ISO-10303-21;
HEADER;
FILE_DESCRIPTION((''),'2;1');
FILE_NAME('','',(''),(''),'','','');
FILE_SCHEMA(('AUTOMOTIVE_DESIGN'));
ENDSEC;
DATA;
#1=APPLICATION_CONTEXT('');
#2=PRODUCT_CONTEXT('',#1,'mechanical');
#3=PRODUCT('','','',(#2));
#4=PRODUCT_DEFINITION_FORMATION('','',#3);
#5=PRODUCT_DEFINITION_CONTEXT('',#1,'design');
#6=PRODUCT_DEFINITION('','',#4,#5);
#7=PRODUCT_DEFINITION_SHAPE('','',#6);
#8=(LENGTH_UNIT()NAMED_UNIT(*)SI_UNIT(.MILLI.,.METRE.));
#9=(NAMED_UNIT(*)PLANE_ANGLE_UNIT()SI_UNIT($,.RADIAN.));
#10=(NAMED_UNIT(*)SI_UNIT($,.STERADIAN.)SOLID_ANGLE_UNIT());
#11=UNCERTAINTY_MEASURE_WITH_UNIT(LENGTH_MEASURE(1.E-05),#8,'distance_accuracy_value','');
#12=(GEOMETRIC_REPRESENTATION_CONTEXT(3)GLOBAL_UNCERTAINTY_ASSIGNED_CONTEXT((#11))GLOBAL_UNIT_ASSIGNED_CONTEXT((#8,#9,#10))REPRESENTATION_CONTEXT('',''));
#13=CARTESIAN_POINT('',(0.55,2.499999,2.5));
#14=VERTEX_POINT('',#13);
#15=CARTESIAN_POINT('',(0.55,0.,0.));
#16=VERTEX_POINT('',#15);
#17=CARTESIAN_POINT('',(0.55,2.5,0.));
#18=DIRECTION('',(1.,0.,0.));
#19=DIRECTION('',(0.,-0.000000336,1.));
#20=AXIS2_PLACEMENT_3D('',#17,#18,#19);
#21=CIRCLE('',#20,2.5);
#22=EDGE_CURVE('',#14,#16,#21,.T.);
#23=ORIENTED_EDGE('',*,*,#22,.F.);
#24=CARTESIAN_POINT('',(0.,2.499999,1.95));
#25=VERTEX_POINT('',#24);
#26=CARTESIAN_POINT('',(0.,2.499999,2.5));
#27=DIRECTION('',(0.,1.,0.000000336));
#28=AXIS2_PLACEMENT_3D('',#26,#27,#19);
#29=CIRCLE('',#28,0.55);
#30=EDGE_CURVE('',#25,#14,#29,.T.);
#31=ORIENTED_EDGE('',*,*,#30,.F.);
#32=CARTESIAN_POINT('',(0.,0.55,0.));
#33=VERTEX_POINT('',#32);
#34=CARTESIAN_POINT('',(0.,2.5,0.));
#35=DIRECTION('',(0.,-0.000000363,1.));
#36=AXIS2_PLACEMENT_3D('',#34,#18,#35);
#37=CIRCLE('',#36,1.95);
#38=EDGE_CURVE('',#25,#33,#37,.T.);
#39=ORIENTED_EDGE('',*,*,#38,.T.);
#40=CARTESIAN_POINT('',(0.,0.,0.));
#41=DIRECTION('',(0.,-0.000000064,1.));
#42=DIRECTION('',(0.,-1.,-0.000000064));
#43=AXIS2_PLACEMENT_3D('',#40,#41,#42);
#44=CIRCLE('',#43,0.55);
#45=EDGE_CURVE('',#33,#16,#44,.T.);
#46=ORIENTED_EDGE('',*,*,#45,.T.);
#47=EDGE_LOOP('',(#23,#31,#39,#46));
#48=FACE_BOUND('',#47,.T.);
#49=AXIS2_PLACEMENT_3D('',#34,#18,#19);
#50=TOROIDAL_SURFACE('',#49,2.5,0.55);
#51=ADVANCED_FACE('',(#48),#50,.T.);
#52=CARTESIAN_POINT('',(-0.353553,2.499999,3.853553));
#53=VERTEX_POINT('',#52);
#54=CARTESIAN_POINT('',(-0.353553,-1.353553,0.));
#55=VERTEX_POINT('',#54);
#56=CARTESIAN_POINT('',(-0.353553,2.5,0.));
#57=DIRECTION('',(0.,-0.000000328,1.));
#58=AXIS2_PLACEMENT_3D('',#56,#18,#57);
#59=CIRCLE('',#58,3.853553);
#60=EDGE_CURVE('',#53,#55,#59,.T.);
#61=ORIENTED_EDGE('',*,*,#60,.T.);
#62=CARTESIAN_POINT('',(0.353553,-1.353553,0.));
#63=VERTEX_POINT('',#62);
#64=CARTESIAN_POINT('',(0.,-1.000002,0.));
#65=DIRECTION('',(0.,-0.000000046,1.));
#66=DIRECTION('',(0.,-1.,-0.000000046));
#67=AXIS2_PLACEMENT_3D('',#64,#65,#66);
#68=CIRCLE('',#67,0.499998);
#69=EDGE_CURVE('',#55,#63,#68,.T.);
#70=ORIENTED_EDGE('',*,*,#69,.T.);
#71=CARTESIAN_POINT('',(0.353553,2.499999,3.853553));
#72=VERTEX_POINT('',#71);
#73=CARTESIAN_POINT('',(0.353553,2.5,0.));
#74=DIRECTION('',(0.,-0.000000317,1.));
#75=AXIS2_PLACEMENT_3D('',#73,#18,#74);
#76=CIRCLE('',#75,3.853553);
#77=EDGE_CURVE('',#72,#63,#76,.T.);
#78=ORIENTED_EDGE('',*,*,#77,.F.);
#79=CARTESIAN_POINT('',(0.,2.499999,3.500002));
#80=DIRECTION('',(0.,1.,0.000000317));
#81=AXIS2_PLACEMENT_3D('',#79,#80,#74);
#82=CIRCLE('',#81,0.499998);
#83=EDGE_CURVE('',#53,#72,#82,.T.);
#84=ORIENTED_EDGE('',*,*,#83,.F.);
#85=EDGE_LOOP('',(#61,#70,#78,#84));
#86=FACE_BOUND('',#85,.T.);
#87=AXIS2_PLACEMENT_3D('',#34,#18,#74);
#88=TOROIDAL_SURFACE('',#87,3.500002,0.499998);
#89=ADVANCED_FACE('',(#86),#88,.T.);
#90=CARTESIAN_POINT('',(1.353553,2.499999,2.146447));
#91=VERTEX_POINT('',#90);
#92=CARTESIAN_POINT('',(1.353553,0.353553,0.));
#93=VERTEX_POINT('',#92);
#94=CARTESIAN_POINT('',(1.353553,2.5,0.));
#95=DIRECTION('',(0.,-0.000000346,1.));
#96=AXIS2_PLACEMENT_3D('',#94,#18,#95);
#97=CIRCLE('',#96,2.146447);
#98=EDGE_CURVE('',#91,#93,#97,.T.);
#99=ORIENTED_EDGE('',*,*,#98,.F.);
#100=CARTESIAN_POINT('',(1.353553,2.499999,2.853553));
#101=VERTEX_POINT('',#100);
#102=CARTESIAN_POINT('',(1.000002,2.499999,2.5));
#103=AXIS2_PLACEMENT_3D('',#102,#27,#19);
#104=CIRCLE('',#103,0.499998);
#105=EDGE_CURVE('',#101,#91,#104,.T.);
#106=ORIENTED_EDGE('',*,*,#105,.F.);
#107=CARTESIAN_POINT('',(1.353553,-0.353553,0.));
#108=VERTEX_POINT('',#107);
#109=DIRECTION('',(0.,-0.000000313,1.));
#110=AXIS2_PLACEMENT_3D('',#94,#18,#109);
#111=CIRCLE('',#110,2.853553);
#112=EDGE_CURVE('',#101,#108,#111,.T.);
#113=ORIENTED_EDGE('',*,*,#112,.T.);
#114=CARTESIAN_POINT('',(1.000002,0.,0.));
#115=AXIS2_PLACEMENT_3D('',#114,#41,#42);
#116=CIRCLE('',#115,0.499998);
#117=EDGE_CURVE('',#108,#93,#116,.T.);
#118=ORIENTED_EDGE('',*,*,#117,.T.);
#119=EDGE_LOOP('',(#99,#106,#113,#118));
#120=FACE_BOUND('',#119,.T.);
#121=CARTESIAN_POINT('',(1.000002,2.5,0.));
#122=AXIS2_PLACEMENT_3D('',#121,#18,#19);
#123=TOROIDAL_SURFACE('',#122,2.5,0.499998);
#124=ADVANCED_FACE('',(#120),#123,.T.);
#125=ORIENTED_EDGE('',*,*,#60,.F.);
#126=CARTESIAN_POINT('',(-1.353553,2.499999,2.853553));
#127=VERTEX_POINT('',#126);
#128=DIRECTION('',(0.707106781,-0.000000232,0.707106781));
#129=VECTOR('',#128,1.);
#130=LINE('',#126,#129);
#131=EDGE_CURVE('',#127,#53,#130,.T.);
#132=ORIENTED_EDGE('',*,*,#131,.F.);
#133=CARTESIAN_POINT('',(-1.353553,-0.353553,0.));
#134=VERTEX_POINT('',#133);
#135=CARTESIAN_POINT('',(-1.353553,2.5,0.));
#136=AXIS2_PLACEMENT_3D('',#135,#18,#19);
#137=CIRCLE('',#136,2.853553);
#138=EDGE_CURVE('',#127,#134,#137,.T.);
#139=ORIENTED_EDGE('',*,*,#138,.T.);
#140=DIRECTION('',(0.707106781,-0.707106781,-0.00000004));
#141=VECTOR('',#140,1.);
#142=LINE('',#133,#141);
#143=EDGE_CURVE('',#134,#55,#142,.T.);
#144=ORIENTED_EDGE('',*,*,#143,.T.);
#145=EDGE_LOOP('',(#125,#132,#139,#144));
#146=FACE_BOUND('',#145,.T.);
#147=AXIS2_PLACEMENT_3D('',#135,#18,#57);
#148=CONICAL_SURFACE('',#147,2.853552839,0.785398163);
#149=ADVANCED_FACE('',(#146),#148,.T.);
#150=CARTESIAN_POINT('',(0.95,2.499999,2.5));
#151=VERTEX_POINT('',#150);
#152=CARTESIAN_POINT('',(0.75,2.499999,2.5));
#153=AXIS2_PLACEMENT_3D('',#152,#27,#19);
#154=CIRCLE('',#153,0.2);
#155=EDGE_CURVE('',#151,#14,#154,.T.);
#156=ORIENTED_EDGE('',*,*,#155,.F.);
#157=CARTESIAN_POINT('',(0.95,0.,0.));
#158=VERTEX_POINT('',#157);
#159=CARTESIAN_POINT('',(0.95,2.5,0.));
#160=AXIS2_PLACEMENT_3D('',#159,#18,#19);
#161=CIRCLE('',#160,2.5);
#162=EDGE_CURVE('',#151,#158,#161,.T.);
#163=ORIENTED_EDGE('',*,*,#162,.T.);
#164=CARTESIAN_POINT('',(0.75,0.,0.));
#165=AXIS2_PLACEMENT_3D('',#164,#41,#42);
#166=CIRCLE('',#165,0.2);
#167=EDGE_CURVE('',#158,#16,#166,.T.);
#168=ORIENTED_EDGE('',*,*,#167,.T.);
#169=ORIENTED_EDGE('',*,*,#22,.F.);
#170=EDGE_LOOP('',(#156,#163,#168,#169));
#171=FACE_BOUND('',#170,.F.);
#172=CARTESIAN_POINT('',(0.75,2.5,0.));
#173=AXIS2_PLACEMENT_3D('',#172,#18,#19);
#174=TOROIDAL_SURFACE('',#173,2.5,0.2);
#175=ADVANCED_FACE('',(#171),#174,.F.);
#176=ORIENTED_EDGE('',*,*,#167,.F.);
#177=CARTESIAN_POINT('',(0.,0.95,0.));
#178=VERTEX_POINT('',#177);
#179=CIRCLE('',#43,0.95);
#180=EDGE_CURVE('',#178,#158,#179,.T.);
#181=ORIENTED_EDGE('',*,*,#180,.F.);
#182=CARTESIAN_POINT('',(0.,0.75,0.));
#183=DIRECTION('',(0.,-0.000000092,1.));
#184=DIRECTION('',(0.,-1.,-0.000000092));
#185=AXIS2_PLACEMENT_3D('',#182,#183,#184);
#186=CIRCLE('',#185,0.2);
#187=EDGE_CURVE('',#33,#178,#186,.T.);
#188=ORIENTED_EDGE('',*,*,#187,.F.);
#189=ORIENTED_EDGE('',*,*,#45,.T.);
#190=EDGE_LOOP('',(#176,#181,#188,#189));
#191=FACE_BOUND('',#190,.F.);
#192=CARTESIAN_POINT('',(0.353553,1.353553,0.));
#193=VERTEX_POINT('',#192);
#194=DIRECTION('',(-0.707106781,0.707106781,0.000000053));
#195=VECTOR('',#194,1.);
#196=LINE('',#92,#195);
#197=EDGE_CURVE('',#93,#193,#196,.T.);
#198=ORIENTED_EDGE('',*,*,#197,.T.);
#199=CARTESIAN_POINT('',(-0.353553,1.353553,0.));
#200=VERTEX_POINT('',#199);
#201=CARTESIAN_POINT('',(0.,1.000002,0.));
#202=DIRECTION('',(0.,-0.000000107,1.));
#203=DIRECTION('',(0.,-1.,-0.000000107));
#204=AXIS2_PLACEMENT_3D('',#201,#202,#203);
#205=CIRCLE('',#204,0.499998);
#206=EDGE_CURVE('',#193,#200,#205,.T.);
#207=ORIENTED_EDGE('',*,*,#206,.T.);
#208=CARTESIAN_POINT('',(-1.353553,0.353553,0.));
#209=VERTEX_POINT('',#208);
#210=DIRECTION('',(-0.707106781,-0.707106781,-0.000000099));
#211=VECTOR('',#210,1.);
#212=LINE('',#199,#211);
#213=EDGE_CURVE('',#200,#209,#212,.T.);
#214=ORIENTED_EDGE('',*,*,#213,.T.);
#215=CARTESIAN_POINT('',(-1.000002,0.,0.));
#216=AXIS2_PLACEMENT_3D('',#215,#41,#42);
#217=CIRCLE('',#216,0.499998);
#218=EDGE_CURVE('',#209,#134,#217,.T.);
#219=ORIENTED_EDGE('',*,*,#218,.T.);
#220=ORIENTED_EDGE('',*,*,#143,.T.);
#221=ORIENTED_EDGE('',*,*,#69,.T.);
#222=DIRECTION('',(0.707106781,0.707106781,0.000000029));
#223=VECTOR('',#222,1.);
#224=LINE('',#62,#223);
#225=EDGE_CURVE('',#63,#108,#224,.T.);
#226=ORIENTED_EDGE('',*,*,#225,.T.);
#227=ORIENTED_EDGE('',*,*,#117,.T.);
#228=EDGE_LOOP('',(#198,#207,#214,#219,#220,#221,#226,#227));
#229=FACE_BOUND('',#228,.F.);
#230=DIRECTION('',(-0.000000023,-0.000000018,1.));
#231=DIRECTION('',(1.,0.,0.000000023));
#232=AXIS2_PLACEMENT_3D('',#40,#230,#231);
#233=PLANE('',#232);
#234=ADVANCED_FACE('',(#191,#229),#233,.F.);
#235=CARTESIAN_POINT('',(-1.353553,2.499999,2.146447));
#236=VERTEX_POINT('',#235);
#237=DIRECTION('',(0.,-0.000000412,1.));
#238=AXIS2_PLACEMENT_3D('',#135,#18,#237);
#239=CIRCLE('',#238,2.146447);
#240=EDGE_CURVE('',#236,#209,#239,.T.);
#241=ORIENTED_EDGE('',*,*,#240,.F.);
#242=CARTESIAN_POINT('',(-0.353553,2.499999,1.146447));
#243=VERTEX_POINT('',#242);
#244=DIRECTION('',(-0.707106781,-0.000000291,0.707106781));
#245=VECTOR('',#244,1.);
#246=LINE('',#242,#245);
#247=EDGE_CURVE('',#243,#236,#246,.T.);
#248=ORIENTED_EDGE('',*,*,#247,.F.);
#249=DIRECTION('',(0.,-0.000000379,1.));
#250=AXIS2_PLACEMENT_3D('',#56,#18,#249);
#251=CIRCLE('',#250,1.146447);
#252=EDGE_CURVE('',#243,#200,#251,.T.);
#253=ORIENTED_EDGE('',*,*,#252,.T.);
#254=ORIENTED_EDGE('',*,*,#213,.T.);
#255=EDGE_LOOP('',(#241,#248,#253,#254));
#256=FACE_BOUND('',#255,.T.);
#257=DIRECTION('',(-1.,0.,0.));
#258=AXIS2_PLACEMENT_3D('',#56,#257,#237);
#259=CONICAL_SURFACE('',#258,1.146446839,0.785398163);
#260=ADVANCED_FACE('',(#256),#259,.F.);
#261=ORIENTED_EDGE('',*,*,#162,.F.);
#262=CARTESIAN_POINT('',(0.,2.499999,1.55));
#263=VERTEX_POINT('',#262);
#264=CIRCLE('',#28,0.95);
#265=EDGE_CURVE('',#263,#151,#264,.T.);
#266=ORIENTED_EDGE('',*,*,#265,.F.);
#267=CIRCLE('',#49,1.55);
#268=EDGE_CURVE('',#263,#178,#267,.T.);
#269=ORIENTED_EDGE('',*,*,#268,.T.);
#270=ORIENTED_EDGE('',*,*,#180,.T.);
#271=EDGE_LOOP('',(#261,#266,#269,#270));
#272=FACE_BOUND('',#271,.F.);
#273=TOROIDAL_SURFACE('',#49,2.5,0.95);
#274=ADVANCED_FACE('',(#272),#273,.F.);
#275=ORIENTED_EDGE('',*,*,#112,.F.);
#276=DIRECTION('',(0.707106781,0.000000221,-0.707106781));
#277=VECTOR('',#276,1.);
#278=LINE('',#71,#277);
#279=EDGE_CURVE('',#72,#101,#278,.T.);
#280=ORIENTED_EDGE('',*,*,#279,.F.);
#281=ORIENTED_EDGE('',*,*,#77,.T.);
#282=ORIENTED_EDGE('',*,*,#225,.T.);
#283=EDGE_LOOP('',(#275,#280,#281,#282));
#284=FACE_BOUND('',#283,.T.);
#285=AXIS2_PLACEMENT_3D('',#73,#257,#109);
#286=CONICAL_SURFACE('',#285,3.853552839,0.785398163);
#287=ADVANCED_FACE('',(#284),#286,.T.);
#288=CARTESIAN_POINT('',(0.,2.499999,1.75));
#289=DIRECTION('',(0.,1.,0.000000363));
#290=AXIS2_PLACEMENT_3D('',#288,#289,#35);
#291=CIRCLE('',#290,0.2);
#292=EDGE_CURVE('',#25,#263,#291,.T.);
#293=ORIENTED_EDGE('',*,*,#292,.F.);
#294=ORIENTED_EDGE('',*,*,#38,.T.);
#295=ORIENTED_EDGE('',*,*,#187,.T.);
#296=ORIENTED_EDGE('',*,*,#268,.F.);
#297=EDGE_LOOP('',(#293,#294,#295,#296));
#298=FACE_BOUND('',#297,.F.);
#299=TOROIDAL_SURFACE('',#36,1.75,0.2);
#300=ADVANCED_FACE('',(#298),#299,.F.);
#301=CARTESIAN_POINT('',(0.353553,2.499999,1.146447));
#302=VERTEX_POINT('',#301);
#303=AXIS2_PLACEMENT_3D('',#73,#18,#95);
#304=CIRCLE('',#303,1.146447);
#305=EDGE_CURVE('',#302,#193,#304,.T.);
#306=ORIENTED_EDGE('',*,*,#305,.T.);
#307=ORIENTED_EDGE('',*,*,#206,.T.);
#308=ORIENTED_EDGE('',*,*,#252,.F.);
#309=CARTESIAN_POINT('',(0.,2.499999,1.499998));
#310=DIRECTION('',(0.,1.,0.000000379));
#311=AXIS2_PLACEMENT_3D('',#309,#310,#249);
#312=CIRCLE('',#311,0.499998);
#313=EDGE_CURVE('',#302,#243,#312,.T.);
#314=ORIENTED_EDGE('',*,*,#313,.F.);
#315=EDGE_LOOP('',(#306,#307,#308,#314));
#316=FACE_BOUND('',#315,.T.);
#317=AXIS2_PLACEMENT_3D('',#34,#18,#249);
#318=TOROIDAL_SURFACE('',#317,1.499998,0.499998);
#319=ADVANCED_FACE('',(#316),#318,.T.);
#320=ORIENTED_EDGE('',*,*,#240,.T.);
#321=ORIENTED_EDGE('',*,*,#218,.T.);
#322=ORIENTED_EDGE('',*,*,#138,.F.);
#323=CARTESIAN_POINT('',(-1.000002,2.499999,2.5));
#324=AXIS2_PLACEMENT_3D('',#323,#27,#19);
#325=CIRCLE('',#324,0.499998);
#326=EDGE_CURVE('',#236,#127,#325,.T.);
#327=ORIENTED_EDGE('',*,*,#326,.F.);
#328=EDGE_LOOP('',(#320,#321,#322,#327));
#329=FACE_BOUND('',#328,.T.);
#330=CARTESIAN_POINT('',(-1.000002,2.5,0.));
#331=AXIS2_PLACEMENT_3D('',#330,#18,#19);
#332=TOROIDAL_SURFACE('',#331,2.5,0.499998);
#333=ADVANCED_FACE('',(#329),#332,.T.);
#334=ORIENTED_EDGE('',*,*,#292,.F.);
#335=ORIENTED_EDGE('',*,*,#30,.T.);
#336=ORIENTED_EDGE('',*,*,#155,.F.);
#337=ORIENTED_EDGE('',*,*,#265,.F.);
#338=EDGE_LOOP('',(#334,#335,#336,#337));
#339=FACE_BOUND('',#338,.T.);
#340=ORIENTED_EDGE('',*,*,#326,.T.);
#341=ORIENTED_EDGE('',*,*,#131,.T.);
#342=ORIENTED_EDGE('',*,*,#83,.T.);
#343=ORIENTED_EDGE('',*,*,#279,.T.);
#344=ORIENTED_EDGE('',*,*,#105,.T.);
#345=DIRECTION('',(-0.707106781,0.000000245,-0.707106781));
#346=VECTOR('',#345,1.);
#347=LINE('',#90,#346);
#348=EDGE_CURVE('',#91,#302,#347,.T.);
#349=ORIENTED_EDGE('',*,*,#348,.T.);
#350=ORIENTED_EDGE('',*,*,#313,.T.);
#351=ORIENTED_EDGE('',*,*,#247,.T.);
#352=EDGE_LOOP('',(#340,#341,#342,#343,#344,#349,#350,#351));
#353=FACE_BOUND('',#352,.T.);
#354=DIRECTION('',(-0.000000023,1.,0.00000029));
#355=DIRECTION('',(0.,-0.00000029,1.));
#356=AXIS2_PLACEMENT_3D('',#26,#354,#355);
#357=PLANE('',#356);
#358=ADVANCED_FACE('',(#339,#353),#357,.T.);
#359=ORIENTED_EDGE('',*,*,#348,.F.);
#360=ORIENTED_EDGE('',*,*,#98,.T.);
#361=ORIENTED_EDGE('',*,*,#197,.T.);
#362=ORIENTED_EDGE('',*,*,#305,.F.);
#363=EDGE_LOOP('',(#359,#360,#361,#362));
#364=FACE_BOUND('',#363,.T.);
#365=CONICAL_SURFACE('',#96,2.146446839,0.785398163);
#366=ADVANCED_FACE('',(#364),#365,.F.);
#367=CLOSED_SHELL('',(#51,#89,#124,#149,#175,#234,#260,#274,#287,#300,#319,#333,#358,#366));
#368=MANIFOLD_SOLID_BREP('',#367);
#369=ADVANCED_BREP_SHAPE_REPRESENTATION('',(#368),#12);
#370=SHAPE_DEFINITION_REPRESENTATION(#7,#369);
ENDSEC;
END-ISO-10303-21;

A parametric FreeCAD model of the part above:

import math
import FreeCAD as App
import Part
import Sketcher

doc = App.newDocument("Part")
params = doc.addObject("Spreadsheet::Sheet", "Params")
for row, (alias, value) in enumerate([
    ("sketch1_radius", "0.499998 mm"),
    ("sketch1_radius2", "0.2 mm"),
    ("sketch1_radius3", "0.95 mm"),
    ("sketch2_radius", "2.5 mm"),
], start=1):
    params.set(f"A{row}", alias)
    params.set(f"B{row}", "=" + value)
    params.setAlias(f"B{row}", alias)

body = doc.addObject("PartDesign::Body", "Body")

# Sketch on XY plane
sketch1 = doc.addObject("Sketcher::SketchObject", "Sketch")
body.addObject(sketch1)
sketch1.AttachmentSupport = (doc.XY_Plane, [""])
sketch1.MapMode = "FlatFace"
sketch1.addGeometry([
    Part.LineSegment(App.Vector(1.35, 0.35, 0), App.Vector(0.35, 1.35, 0)),  # 0
    Part.ArcOfCircle(Part.Circle(App.Vector(0, 1, 0), App.Vector(0, 0, 1), 0.5), math.radians(45), math.radians(135)),  # 1
    Part.LineSegment(App.Vector(-0.35, 1.35, 0), App.Vector(-1.35, 0.35, 0)),  # 2
    Part.ArcOfCircle(Part.Circle(App.Vector(-1, 0, 0), App.Vector(0, 0, 1), 0.5), math.radians(135), math.radians(225)),  # 3
    Part.LineSegment(App.Vector(-1.35, -0.35, 0), App.Vector(-0.35, -1.35, 0)),  # 4
    Part.ArcOfCircle(Part.Circle(App.Vector(0, -1, 0), App.Vector(0, 0, 1), 0.5), math.radians(-135), math.radians(-45)),  # 5
    Part.LineSegment(App.Vector(0.35, -1.35, 0), App.Vector(1.35, -0.35, 0)),  # 6
    Part.ArcOfCircle(Part.Circle(App.Vector(1, 0, 0), App.Vector(0, 0, 1), 0.5), math.radians(-45), math.radians(45)),  # 7
    Part.ArcOfCircle(Part.Circle(App.Vector(0, 0, 0), App.Vector(0, 0, 1), 0.95), math.radians(90), math.radians(360)),  # 8
    Part.ArcOfCircle(Part.Circle(App.Vector(0, 0.75, 0), App.Vector(0, 0, 1), 0.2), math.radians(-90), math.radians(90)),  # 9
    Part.ArcOfCircle(Part.Circle(App.Vector(0, 0, 0), App.Vector(0, 0, 1), 0.55), math.radians(90), math.radians(360)),  # 10
    Part.ArcOfCircle(Part.Circle(App.Vector(0.75, 0, 0), App.Vector(0, 0, 1), 0.2), math.radians(0), math.radians(180)),  # 11
], False)
sketch1.addConstraint([
    Sketcher.Constraint("Coincident", 0, 2, 1, 1),
    Sketcher.Constraint("Coincident", 1, 2, 2, 1),
    Sketcher.Constraint("Coincident", 2, 2, 3, 1),
    Sketcher.Constraint("Coincident", 3, 2, 4, 1),
    Sketcher.Constraint("Coincident", 4, 2, 5, 1),
    Sketcher.Constraint("Coincident", 5, 2, 6, 1),
    Sketcher.Constraint("Coincident", 6, 2, 7, 1),
    Sketcher.Constraint("Coincident", 7, 2, 0, 1),
    Sketcher.Constraint("Tangent", 8, 1, 9, 2),
    Sketcher.Constraint("Tangent", 9, 1, 10, 1),
    Sketcher.Constraint("Tangent", 10, 2, 11, 2),
    Sketcher.Constraint("Tangent", 11, 1, 8, 2),
    Sketcher.Constraint("Coincident", 8, 3, -1, 1),
    Sketcher.Constraint("Coincident", 10, 3, -1, 1),
    Sketcher.Constraint("Equal", 1, 3),
    Sketcher.Constraint("Equal", 3, 5),
    Sketcher.Constraint("Equal", 5, 7),
    Sketcher.Constraint("Symmetric", 1, 3, 5, 3, -1, 1),
    Sketcher.Constraint("Symmetric", 3, 3, 7, 3, -1, 1),
    Sketcher.Constraint("Symmetric", 0, 2, 1, 2, -2),
    Sketcher.Constraint("Symmetric", 3, 2, 6, 2, -2),
    Sketcher.Constraint("PointOnObject", 9, 3, -2),
    Sketcher.Constraint("PointOnObject", 11, 3, -1),
    Sketcher.Constraint("Perpendicular", 0, 2),
    Sketcher.Constraint("Horizontal", 4, 2, 5, 2),
    Sketcher.Constraint("Horizontal", 2, 2, 7, 2),
    Sketcher.Constraint("Vertical", 2, 2, 3, 2),
    Sketcher.Constraint("Vertical", 1, 2, 4, 2),
    Sketcher.Constraint("Radius", 1, 0.499998),
    Sketcher.Constraint("Radius", 9, 0.2),
    Sketcher.Constraint("Radius", 8, 0.95),
    Sketcher.Constraint("DistanceY", -1, 1, 1, 3, 1.000002),
    Sketcher.Constraint("DistanceX", 2, 2, 1, 2, 1.0),
    Sketcher.Constraint("DistanceY", 1, 3, 0, 2, 0.353551),
])
sketch1.setExpression("Constraints[28]", "Params.sketch1_radius")
sketch1.setExpression("Constraints[29]", "Params.sketch1_radius2")
sketch1.setExpression("Constraints[30]", "Params.sketch1_radius3")

# Sketch on YZ plane
sketch2 = doc.addObject("Sketcher::SketchObject", "Sketch001")
body.addObject(sketch2)
sketch2.AttachmentSupport = (doc.YZ_Plane, [""])
sketch2.MapMode = "FlatFace"
sketch2.addGeometry(Part.ArcOfCircle(Part.Circle(App.Vector(2.5, 0, 0), App.Vector(0, 0, 1), 2.5), math.radians(90), math.radians(180)), False)
sketch2.addConstraint([
    Sketcher.Constraint("Coincident", 0, 2, -1, 1),
    Sketcher.Constraint("PointOnObject", 0, 3, -1),
    Sketcher.Constraint("Radius", 0, 2.5),
    Sketcher.Constraint("DistanceX", -1, 1, 0, 1, 2.499999),
])
sketch2.setExpression("Constraints[2]", "Params.sketch2_radius")
doc.recompute()

additivepipe = doc.addObject("PartDesign::AdditivePipe", "AdditivePipe")
body.addObject(additivepipe)
additivepipe.Profile = sketch1
additivepipe.Spine = (sketch2, ["Edge1"])

doc.recompute()
